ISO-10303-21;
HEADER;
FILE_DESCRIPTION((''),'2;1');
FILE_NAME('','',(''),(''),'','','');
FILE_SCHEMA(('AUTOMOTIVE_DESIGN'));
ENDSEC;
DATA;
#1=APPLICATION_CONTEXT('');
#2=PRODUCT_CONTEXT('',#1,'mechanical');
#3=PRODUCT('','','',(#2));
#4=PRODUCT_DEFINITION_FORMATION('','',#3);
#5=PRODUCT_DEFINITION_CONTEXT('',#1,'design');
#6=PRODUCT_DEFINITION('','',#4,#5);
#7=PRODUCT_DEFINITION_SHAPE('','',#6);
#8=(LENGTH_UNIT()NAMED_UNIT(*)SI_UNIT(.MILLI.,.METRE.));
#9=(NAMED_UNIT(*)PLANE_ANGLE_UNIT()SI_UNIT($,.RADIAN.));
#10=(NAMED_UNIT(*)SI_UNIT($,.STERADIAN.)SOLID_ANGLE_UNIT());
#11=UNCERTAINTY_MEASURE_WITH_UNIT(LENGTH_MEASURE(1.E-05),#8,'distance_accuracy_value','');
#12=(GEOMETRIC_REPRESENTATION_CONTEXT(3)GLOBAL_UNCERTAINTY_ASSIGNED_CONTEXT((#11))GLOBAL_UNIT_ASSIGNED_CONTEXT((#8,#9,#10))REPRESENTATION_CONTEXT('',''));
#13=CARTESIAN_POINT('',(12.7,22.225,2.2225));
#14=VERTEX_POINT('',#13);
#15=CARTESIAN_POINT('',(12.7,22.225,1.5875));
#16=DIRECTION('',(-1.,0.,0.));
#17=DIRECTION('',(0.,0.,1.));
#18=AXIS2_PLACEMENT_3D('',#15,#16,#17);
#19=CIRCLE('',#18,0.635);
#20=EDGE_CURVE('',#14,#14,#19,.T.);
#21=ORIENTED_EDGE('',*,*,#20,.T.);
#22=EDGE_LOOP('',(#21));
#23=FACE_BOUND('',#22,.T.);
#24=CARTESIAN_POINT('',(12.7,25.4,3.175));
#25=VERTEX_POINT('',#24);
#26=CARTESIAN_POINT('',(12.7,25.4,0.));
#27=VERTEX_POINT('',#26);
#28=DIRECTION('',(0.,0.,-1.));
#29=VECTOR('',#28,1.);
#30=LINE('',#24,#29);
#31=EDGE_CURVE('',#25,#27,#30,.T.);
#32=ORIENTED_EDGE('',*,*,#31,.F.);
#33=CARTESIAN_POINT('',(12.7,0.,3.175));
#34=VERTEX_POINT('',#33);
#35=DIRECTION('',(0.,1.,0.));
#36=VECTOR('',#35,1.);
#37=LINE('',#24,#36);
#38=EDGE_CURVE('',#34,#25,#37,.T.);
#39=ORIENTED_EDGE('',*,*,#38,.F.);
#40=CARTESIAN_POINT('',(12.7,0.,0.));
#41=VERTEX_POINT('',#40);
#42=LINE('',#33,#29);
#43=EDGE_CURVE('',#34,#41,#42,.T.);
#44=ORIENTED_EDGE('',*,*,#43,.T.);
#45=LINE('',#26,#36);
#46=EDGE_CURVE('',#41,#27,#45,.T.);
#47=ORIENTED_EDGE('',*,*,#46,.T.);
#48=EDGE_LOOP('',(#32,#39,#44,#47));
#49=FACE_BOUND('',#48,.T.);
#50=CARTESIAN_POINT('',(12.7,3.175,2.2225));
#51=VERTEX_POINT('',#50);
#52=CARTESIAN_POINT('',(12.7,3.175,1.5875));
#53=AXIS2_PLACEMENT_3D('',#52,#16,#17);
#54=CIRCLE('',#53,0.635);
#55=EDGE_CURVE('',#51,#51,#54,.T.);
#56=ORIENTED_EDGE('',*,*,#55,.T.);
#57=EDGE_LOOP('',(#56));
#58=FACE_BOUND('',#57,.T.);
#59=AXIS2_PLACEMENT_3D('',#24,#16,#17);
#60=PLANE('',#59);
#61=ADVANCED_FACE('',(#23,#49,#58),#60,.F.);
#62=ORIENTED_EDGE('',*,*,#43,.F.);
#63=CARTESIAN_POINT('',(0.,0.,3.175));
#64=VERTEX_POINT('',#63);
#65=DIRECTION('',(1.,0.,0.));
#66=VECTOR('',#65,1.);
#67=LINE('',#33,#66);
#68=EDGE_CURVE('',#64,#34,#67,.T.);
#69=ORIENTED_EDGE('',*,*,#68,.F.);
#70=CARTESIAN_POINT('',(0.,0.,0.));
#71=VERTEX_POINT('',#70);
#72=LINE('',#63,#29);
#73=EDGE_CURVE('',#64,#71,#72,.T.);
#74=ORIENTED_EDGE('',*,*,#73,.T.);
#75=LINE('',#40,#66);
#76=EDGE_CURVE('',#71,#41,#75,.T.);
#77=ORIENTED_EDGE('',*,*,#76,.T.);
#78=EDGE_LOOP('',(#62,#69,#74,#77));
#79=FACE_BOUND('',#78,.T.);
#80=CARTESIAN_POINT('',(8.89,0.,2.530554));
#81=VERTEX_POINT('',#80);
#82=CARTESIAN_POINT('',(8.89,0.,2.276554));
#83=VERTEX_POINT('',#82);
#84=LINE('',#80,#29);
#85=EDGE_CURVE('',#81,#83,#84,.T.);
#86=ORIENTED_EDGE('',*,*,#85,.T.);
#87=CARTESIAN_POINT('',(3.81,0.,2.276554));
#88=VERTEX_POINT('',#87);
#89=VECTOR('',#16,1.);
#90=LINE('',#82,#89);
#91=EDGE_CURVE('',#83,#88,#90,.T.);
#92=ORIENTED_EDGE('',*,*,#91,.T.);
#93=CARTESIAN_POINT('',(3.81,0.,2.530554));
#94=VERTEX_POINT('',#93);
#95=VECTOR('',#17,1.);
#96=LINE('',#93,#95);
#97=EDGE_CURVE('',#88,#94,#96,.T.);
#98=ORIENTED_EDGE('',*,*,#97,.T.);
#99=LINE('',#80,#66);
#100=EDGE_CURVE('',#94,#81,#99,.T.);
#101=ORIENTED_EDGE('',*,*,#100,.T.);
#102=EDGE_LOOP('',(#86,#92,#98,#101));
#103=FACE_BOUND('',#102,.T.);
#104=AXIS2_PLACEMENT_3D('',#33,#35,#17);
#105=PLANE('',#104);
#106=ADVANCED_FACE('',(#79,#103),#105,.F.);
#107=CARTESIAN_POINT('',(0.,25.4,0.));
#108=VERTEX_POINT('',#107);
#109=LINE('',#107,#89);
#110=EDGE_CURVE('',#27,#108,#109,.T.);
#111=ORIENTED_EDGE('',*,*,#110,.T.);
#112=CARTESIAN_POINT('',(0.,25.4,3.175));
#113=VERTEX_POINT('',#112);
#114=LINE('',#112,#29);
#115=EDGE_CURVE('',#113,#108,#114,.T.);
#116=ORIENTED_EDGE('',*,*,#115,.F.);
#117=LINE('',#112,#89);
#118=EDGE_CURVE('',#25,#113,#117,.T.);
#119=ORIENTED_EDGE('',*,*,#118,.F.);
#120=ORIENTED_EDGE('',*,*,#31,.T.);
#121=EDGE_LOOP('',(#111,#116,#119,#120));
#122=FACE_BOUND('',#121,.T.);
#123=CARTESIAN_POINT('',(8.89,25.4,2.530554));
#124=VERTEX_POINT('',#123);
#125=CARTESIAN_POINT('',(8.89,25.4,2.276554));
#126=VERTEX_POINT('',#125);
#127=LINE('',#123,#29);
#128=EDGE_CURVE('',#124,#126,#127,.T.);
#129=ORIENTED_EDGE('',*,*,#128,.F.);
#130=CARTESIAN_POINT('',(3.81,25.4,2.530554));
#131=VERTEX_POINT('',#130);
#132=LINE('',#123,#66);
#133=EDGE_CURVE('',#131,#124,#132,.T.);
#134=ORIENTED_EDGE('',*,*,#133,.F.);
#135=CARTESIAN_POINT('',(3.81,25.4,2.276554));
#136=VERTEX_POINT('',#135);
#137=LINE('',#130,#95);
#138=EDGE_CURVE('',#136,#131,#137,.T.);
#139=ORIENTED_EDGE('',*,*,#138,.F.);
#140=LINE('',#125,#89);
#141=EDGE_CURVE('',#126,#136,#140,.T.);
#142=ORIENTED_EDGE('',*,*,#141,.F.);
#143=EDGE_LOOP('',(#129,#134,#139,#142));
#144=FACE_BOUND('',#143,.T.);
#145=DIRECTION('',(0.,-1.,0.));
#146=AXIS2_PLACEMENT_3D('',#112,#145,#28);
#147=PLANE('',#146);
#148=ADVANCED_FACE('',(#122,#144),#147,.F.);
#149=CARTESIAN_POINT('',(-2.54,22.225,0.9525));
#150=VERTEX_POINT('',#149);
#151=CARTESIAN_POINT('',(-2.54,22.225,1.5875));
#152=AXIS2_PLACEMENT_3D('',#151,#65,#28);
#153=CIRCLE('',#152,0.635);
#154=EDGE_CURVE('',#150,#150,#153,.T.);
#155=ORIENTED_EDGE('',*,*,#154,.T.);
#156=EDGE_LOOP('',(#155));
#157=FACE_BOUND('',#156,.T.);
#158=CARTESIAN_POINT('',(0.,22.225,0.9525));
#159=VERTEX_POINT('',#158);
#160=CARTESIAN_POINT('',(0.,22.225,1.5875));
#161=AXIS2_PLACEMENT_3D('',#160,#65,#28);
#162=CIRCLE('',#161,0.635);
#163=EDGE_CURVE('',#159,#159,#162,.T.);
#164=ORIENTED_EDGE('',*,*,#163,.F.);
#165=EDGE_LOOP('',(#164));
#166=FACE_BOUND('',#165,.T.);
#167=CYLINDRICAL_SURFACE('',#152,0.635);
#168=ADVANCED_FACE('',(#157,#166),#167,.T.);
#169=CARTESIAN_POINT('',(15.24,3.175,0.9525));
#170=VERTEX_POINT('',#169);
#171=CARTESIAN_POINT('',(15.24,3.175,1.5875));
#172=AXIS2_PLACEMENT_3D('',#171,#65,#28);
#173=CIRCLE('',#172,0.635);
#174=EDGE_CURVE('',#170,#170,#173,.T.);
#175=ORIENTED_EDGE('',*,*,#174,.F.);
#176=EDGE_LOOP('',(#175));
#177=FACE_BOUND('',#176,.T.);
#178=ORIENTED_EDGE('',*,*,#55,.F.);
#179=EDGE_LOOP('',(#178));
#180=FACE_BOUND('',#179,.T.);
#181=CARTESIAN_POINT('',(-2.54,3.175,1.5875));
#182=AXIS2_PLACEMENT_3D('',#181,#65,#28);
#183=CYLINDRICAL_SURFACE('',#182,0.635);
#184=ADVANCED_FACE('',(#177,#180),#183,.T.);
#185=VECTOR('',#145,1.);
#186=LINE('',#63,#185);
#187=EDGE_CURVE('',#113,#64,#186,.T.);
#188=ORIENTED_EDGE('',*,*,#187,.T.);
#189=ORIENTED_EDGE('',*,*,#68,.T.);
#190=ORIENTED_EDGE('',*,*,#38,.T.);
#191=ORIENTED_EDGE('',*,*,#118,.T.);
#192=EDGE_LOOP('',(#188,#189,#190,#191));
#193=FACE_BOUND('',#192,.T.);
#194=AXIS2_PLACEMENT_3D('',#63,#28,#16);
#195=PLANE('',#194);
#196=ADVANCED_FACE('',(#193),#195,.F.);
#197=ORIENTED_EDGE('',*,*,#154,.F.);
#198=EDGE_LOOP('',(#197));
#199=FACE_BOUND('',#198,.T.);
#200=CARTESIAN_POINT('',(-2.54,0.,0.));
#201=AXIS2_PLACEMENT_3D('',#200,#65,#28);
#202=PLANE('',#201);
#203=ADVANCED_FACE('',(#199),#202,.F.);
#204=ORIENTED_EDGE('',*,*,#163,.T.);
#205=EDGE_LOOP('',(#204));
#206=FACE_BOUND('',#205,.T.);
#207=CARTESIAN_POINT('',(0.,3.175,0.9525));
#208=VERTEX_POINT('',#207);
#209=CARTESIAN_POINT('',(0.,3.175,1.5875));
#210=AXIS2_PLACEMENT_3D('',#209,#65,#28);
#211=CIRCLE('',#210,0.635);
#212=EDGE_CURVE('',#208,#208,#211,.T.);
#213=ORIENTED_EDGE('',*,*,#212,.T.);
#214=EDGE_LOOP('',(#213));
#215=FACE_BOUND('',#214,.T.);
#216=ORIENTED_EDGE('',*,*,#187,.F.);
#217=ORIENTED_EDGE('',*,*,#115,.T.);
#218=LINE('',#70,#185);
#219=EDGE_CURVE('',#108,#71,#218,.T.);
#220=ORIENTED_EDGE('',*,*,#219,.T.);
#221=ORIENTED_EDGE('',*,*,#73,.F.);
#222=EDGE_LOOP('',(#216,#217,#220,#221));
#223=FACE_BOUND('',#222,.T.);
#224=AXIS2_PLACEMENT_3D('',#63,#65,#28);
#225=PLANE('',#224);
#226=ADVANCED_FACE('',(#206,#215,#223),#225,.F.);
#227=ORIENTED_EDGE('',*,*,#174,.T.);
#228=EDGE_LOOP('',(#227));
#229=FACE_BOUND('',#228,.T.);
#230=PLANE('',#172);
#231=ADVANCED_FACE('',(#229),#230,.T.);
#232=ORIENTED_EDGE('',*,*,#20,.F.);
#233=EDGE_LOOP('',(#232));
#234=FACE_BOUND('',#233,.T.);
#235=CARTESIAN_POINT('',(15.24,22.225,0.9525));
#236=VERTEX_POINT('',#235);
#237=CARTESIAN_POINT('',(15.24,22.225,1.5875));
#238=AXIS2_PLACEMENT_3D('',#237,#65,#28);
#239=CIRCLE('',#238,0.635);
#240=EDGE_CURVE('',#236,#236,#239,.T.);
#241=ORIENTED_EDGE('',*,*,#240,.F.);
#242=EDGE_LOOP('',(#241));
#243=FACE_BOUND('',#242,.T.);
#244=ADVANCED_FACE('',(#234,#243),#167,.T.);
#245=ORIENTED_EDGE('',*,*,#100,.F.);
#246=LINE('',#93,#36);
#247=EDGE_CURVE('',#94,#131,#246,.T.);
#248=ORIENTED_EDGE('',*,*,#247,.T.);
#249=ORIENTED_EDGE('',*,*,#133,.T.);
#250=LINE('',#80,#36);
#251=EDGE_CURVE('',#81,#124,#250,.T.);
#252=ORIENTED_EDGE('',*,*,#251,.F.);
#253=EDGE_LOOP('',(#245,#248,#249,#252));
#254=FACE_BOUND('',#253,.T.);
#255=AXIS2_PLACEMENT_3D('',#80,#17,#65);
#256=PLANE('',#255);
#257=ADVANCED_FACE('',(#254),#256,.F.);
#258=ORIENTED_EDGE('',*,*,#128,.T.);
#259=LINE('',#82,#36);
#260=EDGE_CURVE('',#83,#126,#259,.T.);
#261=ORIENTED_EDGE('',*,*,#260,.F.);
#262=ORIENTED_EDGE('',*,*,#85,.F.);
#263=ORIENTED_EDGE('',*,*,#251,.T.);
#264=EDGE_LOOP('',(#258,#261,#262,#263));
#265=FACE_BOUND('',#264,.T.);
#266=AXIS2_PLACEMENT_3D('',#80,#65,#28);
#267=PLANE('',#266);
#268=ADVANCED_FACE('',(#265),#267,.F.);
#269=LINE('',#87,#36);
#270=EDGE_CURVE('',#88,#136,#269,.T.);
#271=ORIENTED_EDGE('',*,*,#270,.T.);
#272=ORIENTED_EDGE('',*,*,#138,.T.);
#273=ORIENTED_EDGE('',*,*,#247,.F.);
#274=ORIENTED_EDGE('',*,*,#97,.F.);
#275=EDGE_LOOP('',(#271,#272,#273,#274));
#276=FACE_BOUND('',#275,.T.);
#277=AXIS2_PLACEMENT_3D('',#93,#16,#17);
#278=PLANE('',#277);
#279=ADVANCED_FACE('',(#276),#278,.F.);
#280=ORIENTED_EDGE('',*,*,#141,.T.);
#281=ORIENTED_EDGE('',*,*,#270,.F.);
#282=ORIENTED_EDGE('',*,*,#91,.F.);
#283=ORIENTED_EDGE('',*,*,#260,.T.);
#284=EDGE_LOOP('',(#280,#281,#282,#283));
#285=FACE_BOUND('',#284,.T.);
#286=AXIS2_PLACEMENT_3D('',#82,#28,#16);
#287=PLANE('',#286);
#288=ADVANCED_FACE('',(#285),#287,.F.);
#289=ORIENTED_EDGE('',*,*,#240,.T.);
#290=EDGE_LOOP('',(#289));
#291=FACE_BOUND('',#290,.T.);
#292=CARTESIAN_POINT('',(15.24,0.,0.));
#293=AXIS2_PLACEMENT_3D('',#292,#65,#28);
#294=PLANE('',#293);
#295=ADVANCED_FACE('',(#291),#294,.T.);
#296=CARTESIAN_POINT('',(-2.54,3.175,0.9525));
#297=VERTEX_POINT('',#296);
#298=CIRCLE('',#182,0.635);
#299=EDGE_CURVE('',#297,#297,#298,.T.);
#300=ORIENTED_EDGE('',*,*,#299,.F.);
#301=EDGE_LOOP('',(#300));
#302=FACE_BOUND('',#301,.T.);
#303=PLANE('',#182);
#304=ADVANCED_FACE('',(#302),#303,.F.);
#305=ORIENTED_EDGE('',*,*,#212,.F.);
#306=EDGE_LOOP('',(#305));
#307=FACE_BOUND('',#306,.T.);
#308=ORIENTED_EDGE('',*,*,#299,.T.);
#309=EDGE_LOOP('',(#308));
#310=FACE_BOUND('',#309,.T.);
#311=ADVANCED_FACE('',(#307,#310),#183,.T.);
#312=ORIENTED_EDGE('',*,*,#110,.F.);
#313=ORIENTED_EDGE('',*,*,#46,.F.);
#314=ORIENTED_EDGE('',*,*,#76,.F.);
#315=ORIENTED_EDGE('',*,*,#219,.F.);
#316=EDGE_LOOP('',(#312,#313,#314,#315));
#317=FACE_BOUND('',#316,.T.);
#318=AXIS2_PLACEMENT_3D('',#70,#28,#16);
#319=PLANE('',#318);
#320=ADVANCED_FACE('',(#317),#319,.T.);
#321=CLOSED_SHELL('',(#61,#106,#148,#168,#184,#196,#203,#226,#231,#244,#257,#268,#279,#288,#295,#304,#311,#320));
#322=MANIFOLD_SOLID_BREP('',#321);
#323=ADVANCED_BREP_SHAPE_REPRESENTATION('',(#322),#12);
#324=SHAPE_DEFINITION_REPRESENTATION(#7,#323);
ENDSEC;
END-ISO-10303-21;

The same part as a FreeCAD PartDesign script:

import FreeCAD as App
import Part
import Sketcher
from FreeCAD import Vector
Q = App.Units.Quantity


def add_polygon(sketch, points):
    """Adds a closed chain of lines whose ends are joined by coincident constraints."""
    first, n = sketch.GeometryCount, len(points)
    for a, b in zip(points, points[1:] + points[:1]):
        sketch.addGeometry(Part.LineSegment(App.Vector(*a, 0), App.Vector(*b, 0)), False)
    for i in range(n):
        sketch.addConstraint(Sketcher.Constraint("Coincident", first + i, 2, first + (i + 1) % n, 1))

doc = App.newDocument("Part")
params = doc.addObject("Spreadsheet::Sheet", "Params")
for row, (alias, value) in enumerate([
    ("sketch1_height", "1 in"),
    ("sketch1_width", "0.5 in"),
    ("pad1_length", "0.125 in"),
    ("sketch2_diameter", "0.05 in"),
    ("pad2_length", "0.1 in"),
    ("pad2_length2", "0.6 in"),
    ("sketch3_diameter", "0.05 in"),
    ("pad3_length", "0.1 in"),
    ("pad3_length2", "0.6 in"),
    ("sketch4_width", "0.2 in"),
    ("sketch4_height", "0.01 in"),
], start=1):
    params.set(f"A{row}", alias)
    params.set(f"B{row}", "=" + value)
    params.setAlias(f"B{row}", alias)

body = doc.addObject("PartDesign::Body", "Body")

sketch1 = doc.addObject("Sketcher::SketchObject", "Sketch")
body.addObject(sketch1)
sketch1.AttachmentSupport = (doc.XY_Plane, [""])
sketch1.MapMode = "FlatFace"
add_polygon(sketch1, [(0, 25), (0, 0), (13, 0), (13, 25)])
sketch1.addConstraint([
    Sketcher.Constraint("Vertical", 0),
    Sketcher.Constraint("Horizontal", 1),
    Sketcher.Constraint("Vertical", 2),
    Sketcher.Constraint("Horizontal", 3),
    Sketcher.Constraint("Coincident", 0, 2, -1, 1),
    Sketcher.Constraint("DistanceY", 0, 2, 0, 1, Q("1 in")),
    Sketcher.Constraint("DistanceX", 1, 1, 1, 2, Q("0.5 in")),
])
sketch1.setExpression("Constraints[9]", "Params.sketch1_height")
sketch1.setExpression("Constraints[10]", "Params.sketch1_width")
pad1 = doc.addObject("PartDesign::Pad", "Pad")
body.addObject(pad1)
pad1.Profile = sketch1
pad1.setExpression("Length", "Params.pad1_length")

sketch2 = doc.addObject("Sketcher::SketchObject", "Sketch001")
body.addObject(sketch2)
sketch2.AttachmentSupport = (doc.YZ_Plane, [""])
sketch2.MapMode = "FlatFace"
sketch2.AttachmentOffset = App.Placement(Vector(0, 0, 0.5 * 25.4), App.Rotation())
sketch2.addGeometry(Part.Circle(Vector(22.2, 1.6, 0), Vector(0, 0, 1), 0.6), False)
sketch2.addConstraint([
    Sketcher.Constraint("Diameter", 0, Q("0.05 in")),
    Sketcher.Constraint("DistanceX", -1, 1, 0, 3, Q("0.875 in")),
    Sketcher.Constraint("DistanceY", -1, 1, 0, 3, Q("0.0625 in")),
])
sketch2.setExpression("Constraints[0]", "Params.sketch2_diameter")
pad2 = doc.addObject("PartDesign::Pad", "Pad001")
body.addObject(pad2)
pad2.Profile = sketch2
pad2.Type = "TwoLengths"
pad2.setExpression("Length", "Params.pad2_length")
pad2.setExpression("Length2", "Params.pad2_length2")

sketch3 = doc.addObject("Sketcher::SketchObject", "Sketch002")
body.addObject(sketch3)
sketch3.AttachmentSupport = (doc.YZ_Plane, [""])
sketch3.MapMode = "FlatFace"
sketch3.AttachmentOffset = App.Placement(Vector(0, 0, 0.5 * 25.4), App.Rotation())
sketch3.addGeometry(Part.Circle(Vector(3.2, 1.6, 0), Vector(0, 0, 1), 0.6), False)
sketch3.addConstraint([
    Sketcher.Constraint("Diameter", 0, Q("0.05 in")),
    Sketcher.Constraint("DistanceX", -1, 1, 0, 3, Q("0.125 in")),
    Sketcher.Constraint("DistanceY", -1, 1, 0, 3, Q("0.0625 in")),
])
sketch3.setExpression("Constraints[0]", "Params.sketch3_diameter")
pad3 = doc.addObject("PartDesign::Pad", "Pad002")
body.addObject(pad3)
pad3.Profile = sketch3
pad3.Type = "TwoLengths"
pad3.setExpression("Length", "Params.pad3_length")
pad3.setExpression("Length2", "Params.pad3_length2")

sketch4 = doc.addObject("Sketcher::SketchObject", "Sketch003")
body.addObject(sketch4)
sketch4.AttachmentSupport = (doc.XZ_Plane, [""])
sketch4.MapMode = "FlatFace"
sketch4.AttachmentOffset = App.Placement(Vector(0, 0, -1 * 25.4), App.Rotation())
add_polygon(sketch4, [(3.81, 2.28), (3.81, 2.53), (8.89, 2.53), (8.89, 2.28)])
sketch4.addConstraint([
    Sketcher.Constraint("Vertical", 0),
    Sketcher.Constraint("Horizontal", 1),
    Sketcher.Constraint("Vertical", 2),
    Sketcher.Constraint("Horizontal", 3),
    Sketcher.Constraint("DistanceX", 1, 1, 1, 2, Q("0.2 in")),
    Sketcher.Constraint("DistanceY", 0, 1, 0, 2, Q("0.01 in")),
    Sketcher.Constraint("DistanceX", -1, 1, 0, 2, Q("0.15 in")),
    Sketcher.Constraint("DistanceY", -1, 1, 0, 2, 2.530554),
])
sketch4.setExpression("Constraints[8]", "Params.sketch4_width")
sketch4.setExpression("Constraints[9]", "Params.sketch4_height")
pocket1 = doc.addObject("PartDesign::Pocket", "Pocket")
body.addObject(pocket1)
pocket1.Profile = sketch4
pocket1.Type = "ThroughAll"
pocket1.Reversed = True

doc.recompute()
